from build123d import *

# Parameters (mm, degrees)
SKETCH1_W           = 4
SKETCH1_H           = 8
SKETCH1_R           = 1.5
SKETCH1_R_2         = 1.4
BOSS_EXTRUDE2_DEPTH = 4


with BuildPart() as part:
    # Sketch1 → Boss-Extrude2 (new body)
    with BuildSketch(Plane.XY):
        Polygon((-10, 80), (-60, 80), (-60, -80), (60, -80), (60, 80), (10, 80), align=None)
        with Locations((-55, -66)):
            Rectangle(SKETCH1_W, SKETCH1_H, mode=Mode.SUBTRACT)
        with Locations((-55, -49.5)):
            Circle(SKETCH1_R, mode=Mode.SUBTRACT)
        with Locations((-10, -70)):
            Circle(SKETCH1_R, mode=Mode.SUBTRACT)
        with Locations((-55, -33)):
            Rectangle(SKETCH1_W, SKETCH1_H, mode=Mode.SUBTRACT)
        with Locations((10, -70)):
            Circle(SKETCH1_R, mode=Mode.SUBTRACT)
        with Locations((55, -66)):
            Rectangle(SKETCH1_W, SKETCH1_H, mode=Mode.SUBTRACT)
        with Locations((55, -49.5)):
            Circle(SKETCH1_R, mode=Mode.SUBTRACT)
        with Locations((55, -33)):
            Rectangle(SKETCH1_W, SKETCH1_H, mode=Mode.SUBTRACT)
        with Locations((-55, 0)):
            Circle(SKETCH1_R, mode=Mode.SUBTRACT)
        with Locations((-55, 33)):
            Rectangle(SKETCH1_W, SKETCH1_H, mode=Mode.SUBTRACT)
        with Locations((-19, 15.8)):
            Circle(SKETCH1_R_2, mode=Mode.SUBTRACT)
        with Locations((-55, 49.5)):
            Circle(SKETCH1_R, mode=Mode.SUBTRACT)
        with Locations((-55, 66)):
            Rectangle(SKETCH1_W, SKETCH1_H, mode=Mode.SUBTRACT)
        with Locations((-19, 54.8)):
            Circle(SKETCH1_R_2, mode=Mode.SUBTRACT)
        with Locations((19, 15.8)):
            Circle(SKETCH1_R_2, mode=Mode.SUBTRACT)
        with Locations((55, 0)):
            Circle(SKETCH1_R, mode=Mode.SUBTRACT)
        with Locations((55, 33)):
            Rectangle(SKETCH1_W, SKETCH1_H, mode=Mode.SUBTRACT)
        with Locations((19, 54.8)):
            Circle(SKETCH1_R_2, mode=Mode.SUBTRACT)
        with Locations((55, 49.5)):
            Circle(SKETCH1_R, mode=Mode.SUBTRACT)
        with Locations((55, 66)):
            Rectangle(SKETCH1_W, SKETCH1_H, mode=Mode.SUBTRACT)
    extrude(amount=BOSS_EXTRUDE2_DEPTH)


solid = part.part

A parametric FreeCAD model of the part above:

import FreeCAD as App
import Part
import Sketcher
from FreeCAD import Vector
Q = App.Units.Quantity


def add_polygon(sketch, points):
    """Adds a closed chain of lines whose ends are joined by coincident constraints."""
    first, n = sketch.GeometryCount, len(points)
    for a, b in zip(points, points[1:] + points[:1]):
        sketch.addGeometry(Part.LineSegment(App.Vector(*a, 0), App.Vector(*b, 0)), False)
    for i in range(n):
        sketch.addConstraint(Sketcher.Constraint("Coincident", first + i, 2, first + (i + 1) % n, 1))

doc = App.newDocument("Part")
body = doc.addObject("PartDesign::Body", "Body")

# Sketch on XY plane
sketch1 = body.newObject("Sketcher::SketchObject", "Sketch")
sketch1.AttachmentSupport = (doc.getObject("XY_Plane"), [""])
sketch1.MapMode = "FlatFace"
add_polygon(sketch1, [(-60, 80), (-60, -80), (60, -80), (60, 80)])  # lines 0-3
add_polygon(sketch1, [(-53, -70), (-57, -70), (-57, -62), (-53, -62)])  # lines 4-7
sketch1.addGeometry(Part.Circle(Vector(-55, -49.5, 0), Vector(0, 0, 1), 1.5), False)  # 8
sketch1.addGeometry(Part.Circle(Vector(-10, -70, 0), Vector(0, 0, 1), 1.5), False)  # 9
add_polygon(sketch1, [(-53, -37), (-57, -37), (-57, -29), (-53, -29)])  # lines 10-13
sketch1.addGeometry(Part.Circle(Vector(10, -70, 0), Vector(0, 0, 1), 1.5), False)  # 14
add_polygon(sketch1, [(57, -70), (53, -70), (53, -62), (57, -62)])  # lines 15-18
sketch1.addGeometry(Part.Circle(Vector(55, -49.5, 0), Vector(0, 0, 1), 1.5), False)  # 19
add_polygon(sketch1, [(57, -37), (53, -37), (53, -29), (57, -29)])  # lines 20-23
sketch1.addGeometry(Part.Circle(Vector(-55, 0, 0), Vector(0, 0, 1), 1.5), False)  # 24
add_polygon(sketch1, [(-53, 29), (-57, 29), (-57, 37), (-53, 37)])  # lines 25-28
sketch1.addGeometry(Part.Circle(Vector(-19, 15.8, 0), Vector(0, 0, 1), 1.4), False)  # 29
sketch1.addGeometry(Part.Circle(Vector(-55, 49.5, 0), Vector(0, 0, 1), 1.5), False)  # 30
add_polygon(sketch1, [(-53, 62), (-57, 62), (-57, 70), (-53, 70)])  # lines 31-34
sketch1.addGeometry(Part.Circle(Vector(-19, 54.8, 0), Vector(0, 0, 1), 1.4), False)  # 35
sketch1.addGeometry(Part.Circle(Vector(19, 15.8, 0), Vector(0, 0, 1), 1.4), False)  # 36
sketch1.addGeometry(Part.Circle(Vector(55, 0, 0), Vector(0, 0, 1), 1.5), False)  # 37
add_polygon(sketch1, [(57, 29), (53, 29), (53, 37), (57, 37)])  # lines 38-41
sketch1.addGeometry(Part.Circle(Vector(19, 54.8, 0), Vector(0, 0, 1), 1.4), False)  # 42
sketch1.addGeometry(Part.Circle(Vector(55, 49.5, 0), Vector(0, 0, 1), 1.5), False)  # 43
add_polygon(sketch1, [(57, 62), (53, 62), (53, 70), (57, 70)])  # lines 44-47
sketch1.addConstraint([
    Sketcher.Constraint("Vertical", 0),
    Sketcher.Constraint("Horizontal", 1),
    Sketcher.Constraint("Vertical", 2),
    Sketcher.Constraint("Horizontal", 3),
    Sketcher.Constraint("Horizontal", 4),
    Sketcher.Constraint("Vertical", 5),
    Sketcher.Constraint("Horizontal", 6),
    Sketcher.Constraint("Vertical", 7),
    Sketcher.Constraint("Horizontal", 10),
    Sketcher.Constraint("Vertical", 11),
    Sketcher.Constraint("Horizontal", 12),
    Sketcher.Constraint("Vertical", 13),
    Sketcher.Constraint("Horizontal", 15),
    Sketcher.Constraint("Vertical", 16),
    Sketcher.Constraint("Horizontal", 17),
    Sketcher.Constraint("Vertical", 18),
    Sketcher.Constraint("Horizontal", 20),
    Sketcher.Constraint("Vertical", 21),
    Sketcher.Constraint("Horizontal", 22),
    Sketcher.Constraint("Vertical", 23),
    Sketcher.Constraint("Horizontal", 25),
    Sketcher.Constraint("Vertical", 26),
    Sketcher.Constraint("Horizontal", 27),
    Sketcher.Constraint("Vertical", 28),
    Sketcher.Constraint("Horizontal", 31),
    Sketcher.Constraint("Vertical", 32),
    Sketcher.Constraint("Horizontal", 33),
    Sketcher.Constraint("Vertical", 34),
    Sketcher.Constraint("Horizontal", 38),
    Sketcher.Constraint("Vertical", 39),
    Sketcher.Constraint("Horizontal", 40),
    Sketcher.Constraint("Vertical", 41),
    Sketcher.Constraint("Horizontal", 44),
    Sketcher.Constraint("Vertical", 45),
    Sketcher.Constraint("Horizontal", 46),
    Sketcher.Constraint("Vertical", 47),
    Sketcher.Constraint("Equal", 8, 9),
    Sketcher.Constraint("Equal", 9, 14),
    Sketcher.Constraint("Equal", 14, 19),
    Sketcher.Constraint("Equal", 19, 24),
    Sketcher.Constraint("Equal", 24, 30),
    Sketcher.Constraint("Equal", 29, 35),
    Sketcher.Constraint("Equal", 35, 36),
    Sketcher.Constraint("Equal", 30, 37),
    Sketcher.Constraint("Equal", 36, 42),
    Sketcher.Constraint("Equal", 37, 43),
    Sketcher.Constraint("Symmetric", 19, 3, 30, 3, -1, 1),
    Sketcher.Constraint("Symmetric", 24, 3, 37, 3, -1, 1),
    Sketcher.Constraint("Symmetric", 8, 3, 43, 3, -1, 1),
    Sketcher.Constraint("Symmetric", 0, 2, 2, 2, -1, 1),
    Sketcher.Constraint("Symmetric", 22, 2, 25, 2, -1, 1),
    Sketcher.Constraint("Symmetric", 20, 2, 27, 2, -1, 1),
    Sketcher.Constraint("Symmetric", 17, 2, 31, 2, -1, 1),
    Sketcher.Constraint("Symmetric", 15, 2, 33, 2, -1, 1),
    Sketcher.Constraint("Symmetric", 12, 2, 38, 2, -1, 1),
    Sketcher.Constraint("Symmetric", 10, 2, 40, 2, -1, 1),
    Sketcher.Constraint("Symmetric", 6, 2, 44, 2, -1, 1),
    Sketcher.Constraint("Symmetric", 4, 2, 46, 2, -1, 1),
    Sketcher.Constraint("Symmetric", 9, 3, 14, 3, -2),
    Sketcher.Constraint("Symmetric", 8, 3, 19, 3, -2),
    Sketcher.Constraint("Symmetric", 29, 3, 36, 3, -2),
    Sketcher.Constraint("Symmetric", 35, 3, 42, 3, -2),
    Sketcher.Constraint("Symmetric", 7, 2, 15, 2, -2),
    Sketcher.Constraint("Symmetric", 5, 2, 17, 2, -2),
    Sketcher.Constraint("Symmetric", 13, 2, 20, 2, -2),
    Sketcher.Constraint("Symmetric", 11, 2, 22, 2, -2),
    Sketcher.Constraint("PointOnObject", 24, 3, -1),
    Sketcher.Constraint("Horizontal", 14, 3, 4, 2),
    Sketcher.Constraint("Vertical", 8, 3, 24, 3),
    Sketcher.Constraint("Vertical", 29, 3, 35, 3),
    Sketcher.Constraint("Vertical", 5, 2, 10, 2),
    Sketcher.Constraint("Vertical", 7, 2, 12, 2),
    Sketcher.Constraint("Equal", 7, 11),
    Sketcher.Constraint("Diameter", 8, Q("3 mm")),
    Sketcher.Constraint("Diameter", 29, Q("2.8 mm")),
    Sketcher.Constraint("DistanceX", 1, 1, 1, 2, Q("120 mm")),
    Sketcher.Constraint("DistanceX", 4, 2, 4, 1, Q("4 mm")),
    Sketcher.Constraint("DistanceY", 0, 2, 0, 1, Q("160 mm")),
    Sketcher.Constraint("DistanceY", 5, 1, 5, 2, Q("8 mm")),
    Sketcher.Constraint("DistanceX", 8, 3, -1, 1, Q("55 mm")),
    Sketcher.Constraint("DistanceX", 9, 3, -1, 1, Q("10 mm")),
    Sketcher.Constraint("DistanceY", 9, 3, -1, 1, Q("70 mm")),
    Sketcher.Constraint("DistanceX", 29, 3, -1, 1, Q("19 mm")),
    Sketcher.Constraint("DistanceX", 4, 2, -1, 1, Q("57 mm")),
    Sketcher.Constraint("DistanceY", 10, 2, -1, 1, Q("37 mm")),
    Sketcher.Constraint("DistanceY", 8, 3, 30, 3, Q("99 mm")),
    Sketcher.Constraint("DistanceY", 29, 3, 35, 3, Q("39 mm")),
    Sketcher.Constraint("DistanceY", -1, 1, 29, 3, Q("15.8 mm")),
])
pad1 = body.newObject("PartDesign::Pad", "Pad")
pad1.Profile = sketch1
pad1.Length = 4

doc.recompute()
